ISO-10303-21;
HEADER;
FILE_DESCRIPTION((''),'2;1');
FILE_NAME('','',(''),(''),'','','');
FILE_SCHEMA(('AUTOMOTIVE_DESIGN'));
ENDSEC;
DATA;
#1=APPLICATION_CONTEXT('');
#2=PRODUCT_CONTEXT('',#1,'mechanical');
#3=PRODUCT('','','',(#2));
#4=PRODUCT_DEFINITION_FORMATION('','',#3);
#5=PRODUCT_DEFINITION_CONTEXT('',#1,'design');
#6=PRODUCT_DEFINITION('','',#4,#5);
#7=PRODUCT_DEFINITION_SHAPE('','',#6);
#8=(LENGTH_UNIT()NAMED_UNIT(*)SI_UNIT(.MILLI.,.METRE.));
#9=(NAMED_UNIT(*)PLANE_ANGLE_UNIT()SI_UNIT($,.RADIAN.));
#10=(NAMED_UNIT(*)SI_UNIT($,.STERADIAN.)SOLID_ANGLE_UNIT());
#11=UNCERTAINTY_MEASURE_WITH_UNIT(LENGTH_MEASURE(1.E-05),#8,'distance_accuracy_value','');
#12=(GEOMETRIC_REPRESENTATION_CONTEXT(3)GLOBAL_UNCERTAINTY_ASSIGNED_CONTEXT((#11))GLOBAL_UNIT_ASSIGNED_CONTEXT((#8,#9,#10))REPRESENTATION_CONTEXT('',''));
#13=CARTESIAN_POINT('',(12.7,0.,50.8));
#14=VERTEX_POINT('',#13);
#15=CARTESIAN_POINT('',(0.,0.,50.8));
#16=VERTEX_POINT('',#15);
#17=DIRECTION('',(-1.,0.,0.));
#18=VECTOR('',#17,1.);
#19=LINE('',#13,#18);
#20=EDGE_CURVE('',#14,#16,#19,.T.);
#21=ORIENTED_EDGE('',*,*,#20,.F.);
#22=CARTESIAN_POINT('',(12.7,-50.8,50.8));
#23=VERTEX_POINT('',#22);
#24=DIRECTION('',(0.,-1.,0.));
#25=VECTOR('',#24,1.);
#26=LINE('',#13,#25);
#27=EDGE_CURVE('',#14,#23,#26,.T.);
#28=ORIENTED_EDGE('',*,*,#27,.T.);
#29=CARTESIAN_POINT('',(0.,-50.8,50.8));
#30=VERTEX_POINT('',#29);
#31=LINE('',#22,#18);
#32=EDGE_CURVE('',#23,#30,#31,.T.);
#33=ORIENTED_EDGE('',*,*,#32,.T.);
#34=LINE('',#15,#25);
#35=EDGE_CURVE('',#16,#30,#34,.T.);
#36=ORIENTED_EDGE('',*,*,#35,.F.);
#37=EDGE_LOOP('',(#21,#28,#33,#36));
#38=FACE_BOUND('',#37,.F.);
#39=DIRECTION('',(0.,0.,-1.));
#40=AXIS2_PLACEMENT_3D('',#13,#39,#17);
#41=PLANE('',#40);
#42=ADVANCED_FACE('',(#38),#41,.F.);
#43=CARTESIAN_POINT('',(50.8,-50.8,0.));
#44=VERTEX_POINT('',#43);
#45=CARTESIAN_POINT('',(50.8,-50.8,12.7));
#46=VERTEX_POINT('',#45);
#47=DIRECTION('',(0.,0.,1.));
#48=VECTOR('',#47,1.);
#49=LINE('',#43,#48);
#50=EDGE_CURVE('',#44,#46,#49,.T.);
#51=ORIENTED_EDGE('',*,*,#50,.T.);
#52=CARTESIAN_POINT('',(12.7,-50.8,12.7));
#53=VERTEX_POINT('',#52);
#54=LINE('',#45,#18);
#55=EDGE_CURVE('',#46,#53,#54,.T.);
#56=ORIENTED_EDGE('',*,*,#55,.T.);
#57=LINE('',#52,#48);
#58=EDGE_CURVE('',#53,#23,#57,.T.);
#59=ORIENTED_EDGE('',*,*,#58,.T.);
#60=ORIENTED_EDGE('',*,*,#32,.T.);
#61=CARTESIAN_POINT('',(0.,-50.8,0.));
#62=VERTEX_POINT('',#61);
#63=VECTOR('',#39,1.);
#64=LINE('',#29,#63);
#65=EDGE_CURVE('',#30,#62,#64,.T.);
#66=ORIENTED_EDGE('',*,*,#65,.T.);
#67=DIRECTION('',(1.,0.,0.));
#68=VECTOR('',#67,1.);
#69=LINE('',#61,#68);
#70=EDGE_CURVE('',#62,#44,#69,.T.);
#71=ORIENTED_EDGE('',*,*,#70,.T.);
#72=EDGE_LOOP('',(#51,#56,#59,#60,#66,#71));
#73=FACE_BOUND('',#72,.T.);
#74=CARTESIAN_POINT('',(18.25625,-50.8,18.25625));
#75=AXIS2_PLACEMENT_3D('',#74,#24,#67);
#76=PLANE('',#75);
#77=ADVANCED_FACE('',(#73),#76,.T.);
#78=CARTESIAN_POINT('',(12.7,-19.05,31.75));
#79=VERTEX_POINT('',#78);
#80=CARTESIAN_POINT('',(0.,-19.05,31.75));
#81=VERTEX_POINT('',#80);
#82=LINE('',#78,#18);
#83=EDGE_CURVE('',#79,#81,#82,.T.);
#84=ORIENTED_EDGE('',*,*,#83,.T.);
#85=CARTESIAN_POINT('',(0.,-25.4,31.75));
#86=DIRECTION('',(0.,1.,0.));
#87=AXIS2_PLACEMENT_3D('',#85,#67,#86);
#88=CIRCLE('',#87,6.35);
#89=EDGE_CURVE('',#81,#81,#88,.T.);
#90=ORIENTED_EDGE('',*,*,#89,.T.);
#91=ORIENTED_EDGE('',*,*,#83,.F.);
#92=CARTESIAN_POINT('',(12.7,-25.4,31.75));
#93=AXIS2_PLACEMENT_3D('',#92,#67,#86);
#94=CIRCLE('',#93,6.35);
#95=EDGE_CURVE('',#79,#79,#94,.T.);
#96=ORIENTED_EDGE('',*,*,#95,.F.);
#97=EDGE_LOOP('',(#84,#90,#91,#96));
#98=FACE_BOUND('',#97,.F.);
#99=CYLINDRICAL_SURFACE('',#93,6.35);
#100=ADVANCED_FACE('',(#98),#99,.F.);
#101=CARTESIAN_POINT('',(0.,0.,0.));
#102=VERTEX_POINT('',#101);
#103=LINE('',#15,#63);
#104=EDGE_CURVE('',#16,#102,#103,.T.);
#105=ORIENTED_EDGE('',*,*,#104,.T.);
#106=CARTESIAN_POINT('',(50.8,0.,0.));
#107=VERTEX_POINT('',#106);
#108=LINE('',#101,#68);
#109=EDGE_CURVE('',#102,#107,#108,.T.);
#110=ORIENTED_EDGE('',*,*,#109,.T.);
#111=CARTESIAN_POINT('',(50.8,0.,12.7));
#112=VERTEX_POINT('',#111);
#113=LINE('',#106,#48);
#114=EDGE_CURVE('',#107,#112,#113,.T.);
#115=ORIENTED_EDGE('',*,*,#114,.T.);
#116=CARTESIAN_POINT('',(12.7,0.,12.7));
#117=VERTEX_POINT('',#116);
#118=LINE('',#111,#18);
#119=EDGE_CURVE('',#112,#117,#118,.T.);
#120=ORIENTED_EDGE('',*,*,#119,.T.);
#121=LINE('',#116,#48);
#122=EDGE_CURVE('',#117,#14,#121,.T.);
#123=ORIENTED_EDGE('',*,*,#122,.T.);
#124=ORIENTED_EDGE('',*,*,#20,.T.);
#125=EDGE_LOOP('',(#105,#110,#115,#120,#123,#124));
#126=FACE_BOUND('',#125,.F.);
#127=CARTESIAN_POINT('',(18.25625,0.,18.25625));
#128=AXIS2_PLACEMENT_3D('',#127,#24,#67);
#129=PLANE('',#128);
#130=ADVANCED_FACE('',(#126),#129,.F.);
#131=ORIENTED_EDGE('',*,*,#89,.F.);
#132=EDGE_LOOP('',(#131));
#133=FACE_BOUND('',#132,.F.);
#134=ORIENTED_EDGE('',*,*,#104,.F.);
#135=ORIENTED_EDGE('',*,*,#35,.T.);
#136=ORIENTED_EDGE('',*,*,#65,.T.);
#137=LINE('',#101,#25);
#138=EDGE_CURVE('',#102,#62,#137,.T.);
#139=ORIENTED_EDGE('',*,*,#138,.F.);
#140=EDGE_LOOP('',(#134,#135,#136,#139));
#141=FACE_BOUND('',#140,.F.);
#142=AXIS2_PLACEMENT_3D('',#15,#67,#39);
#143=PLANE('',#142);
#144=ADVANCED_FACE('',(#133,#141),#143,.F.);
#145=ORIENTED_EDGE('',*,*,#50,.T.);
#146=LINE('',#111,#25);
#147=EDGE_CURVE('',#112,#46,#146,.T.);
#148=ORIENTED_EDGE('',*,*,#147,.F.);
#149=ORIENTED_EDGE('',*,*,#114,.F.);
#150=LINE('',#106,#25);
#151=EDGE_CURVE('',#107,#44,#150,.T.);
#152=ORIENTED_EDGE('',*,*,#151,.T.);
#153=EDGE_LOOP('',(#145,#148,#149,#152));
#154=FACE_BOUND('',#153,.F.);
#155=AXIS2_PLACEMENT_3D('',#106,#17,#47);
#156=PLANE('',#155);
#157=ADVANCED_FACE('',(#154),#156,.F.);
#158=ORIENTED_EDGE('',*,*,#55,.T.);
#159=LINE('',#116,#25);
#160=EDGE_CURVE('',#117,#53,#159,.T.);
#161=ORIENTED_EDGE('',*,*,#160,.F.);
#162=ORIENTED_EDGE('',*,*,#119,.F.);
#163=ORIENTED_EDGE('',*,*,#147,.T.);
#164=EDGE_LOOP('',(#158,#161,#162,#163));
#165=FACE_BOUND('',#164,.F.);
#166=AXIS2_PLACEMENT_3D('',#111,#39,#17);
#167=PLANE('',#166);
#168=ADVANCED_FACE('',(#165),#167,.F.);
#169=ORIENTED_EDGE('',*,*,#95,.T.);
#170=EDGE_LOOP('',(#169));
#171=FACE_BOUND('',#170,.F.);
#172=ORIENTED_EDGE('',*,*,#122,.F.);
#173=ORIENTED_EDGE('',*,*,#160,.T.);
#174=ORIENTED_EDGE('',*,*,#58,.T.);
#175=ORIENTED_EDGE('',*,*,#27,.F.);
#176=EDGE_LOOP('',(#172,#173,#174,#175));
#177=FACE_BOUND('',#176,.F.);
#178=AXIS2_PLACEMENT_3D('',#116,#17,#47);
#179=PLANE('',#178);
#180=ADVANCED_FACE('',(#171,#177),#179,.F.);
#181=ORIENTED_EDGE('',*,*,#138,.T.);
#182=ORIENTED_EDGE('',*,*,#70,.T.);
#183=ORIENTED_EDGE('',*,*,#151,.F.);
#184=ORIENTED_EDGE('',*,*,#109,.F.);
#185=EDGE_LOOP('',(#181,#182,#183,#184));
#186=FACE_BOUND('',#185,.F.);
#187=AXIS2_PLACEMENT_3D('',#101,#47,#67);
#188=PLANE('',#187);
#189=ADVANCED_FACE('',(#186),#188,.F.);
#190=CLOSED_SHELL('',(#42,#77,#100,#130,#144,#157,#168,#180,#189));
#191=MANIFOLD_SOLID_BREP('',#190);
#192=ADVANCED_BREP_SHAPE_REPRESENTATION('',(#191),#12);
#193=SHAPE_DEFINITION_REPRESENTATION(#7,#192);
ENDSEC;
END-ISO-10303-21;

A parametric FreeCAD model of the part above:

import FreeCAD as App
import Part
import Sketcher
from FreeCAD import Vector
Q = App.Units.Quantity


def add_polygon(sketch, points):
    """Adds a closed chain of lines whose ends are joined by coincident constraints."""
    first, n = sketch.GeometryCount, len(points)
    for a, b in zip(points, points[1:] + points[:1]):
        sketch.addGeometry(Part.LineSegment(App.Vector(*a, 0), App.Vector(*b, 0)), False)
    for i in range(n):
        sketch.addConstraint(Sketcher.Constraint("Coincident", first + i, 2, first + (i + 1) % n, 1))

doc = App.newDocument("Part")
params = doc.addObject("Spreadsheet::Sheet", "Params")
for row, (alias, value) in enumerate([
    ("sketch1_width", "2 in"),
    ("sketch1_width2", "1.5 in"),
    ("pad1_length", "2 in"),
    ("sketch2_diameter", "0.5 in"),
    ("pocket1_length", "1 in"),
], start=1):
    params.set(f"A{row}", alias)
    params.set(f"B{row}", "=" + value)
    params.setAlias(f"B{row}", alias)

body = doc.addObject("PartDesign::Body", "Body")

sketch1 = body.newObject("Sketcher::SketchObject", "Sketch")
sketch1.AttachmentSupport = (doc.getObject("XZ_Plane"), [""])
sketch1.MapMode = "FlatFace"
add_polygon(sketch1, [(0, 51), (0, 0), (51, 0), (51, 13), (13, 13), (13, 51)])
sketch1.addConstraint(Sketcher.Constraint("Vertical", 0))
sketch1.addConstraint(Sketcher.Constraint("Horizontal", 1))
sketch1.addConstraint(Sketcher.Constraint("Vertical", 2))
sketch1.addConstraint(Sketcher.Constraint("Horizontal", 3))
sketch1.addConstraint(Sketcher.Constraint("Vertical", 4))
sketch1.addConstraint(Sketcher.Constraint("Horizontal", 5))
sketch1.addConstraint(Sketcher.Constraint("Coincident", 0, 2, -1, 1))
sketch1.addConstraint(Sketcher.Constraint("Equal", 1, 0))
sketch1.addConstraint(Sketcher.Constraint("Equal", 5, 2))
sketch1.addConstraint(Sketcher.Constraint("DistanceX", 1, 1, 1, 2, Q("2 in")))
sketch1.addConstraint(Sketcher.Constraint("DistanceX", 3, 2, 3, 1, Q("1.5 in")))
sketch1.setExpression("Constraints[15]", "Params.sketch1_width")
sketch1.setExpression("Constraints[16]", "Params.sketch1_width2")
pad1 = body.newObject("PartDesign::Pad", "Pad")
pad1.Profile = sketch1
pad1.setExpression("Length", "Params.pad1_length")

sketch2 = body.newObject("Sketcher::SketchObject", "Sketch001")
sketch2.AttachmentSupport = (doc.getObject("YZ_Plane"), [""])
sketch2.MapMode = "FlatFace"
sketch2.AttachmentOffset = App.Placement(Vector(0, 0, 0.5 * 25.4), App.Rotation())
sketch2.addGeometry(Part.Circle(Vector(-25, 32, 0), Vector(0, 0, 1), 6), False)
sketch2.addConstraint(Sketcher.Constraint("Diameter", 0, Q("0.5 in")))
sketch2.addConstraint(Sketcher.Constraint("DistanceX", 0, 3, -1, 1, Q("1 in")))
sketch2.addConstraint(Sketcher.Constraint("DistanceY", -1, 1, 0, 3, Q("1.25 in")))
sketch2.setExpression("Constraints[0]", "Params.sketch2_diameter")
pocket1 = body.newObject("PartDesign::Pocket", "Pocket")
pocket1.Profile = sketch2
pocket1.setExpression("Length", "Params.pocket1_length")

doc.recompute()
